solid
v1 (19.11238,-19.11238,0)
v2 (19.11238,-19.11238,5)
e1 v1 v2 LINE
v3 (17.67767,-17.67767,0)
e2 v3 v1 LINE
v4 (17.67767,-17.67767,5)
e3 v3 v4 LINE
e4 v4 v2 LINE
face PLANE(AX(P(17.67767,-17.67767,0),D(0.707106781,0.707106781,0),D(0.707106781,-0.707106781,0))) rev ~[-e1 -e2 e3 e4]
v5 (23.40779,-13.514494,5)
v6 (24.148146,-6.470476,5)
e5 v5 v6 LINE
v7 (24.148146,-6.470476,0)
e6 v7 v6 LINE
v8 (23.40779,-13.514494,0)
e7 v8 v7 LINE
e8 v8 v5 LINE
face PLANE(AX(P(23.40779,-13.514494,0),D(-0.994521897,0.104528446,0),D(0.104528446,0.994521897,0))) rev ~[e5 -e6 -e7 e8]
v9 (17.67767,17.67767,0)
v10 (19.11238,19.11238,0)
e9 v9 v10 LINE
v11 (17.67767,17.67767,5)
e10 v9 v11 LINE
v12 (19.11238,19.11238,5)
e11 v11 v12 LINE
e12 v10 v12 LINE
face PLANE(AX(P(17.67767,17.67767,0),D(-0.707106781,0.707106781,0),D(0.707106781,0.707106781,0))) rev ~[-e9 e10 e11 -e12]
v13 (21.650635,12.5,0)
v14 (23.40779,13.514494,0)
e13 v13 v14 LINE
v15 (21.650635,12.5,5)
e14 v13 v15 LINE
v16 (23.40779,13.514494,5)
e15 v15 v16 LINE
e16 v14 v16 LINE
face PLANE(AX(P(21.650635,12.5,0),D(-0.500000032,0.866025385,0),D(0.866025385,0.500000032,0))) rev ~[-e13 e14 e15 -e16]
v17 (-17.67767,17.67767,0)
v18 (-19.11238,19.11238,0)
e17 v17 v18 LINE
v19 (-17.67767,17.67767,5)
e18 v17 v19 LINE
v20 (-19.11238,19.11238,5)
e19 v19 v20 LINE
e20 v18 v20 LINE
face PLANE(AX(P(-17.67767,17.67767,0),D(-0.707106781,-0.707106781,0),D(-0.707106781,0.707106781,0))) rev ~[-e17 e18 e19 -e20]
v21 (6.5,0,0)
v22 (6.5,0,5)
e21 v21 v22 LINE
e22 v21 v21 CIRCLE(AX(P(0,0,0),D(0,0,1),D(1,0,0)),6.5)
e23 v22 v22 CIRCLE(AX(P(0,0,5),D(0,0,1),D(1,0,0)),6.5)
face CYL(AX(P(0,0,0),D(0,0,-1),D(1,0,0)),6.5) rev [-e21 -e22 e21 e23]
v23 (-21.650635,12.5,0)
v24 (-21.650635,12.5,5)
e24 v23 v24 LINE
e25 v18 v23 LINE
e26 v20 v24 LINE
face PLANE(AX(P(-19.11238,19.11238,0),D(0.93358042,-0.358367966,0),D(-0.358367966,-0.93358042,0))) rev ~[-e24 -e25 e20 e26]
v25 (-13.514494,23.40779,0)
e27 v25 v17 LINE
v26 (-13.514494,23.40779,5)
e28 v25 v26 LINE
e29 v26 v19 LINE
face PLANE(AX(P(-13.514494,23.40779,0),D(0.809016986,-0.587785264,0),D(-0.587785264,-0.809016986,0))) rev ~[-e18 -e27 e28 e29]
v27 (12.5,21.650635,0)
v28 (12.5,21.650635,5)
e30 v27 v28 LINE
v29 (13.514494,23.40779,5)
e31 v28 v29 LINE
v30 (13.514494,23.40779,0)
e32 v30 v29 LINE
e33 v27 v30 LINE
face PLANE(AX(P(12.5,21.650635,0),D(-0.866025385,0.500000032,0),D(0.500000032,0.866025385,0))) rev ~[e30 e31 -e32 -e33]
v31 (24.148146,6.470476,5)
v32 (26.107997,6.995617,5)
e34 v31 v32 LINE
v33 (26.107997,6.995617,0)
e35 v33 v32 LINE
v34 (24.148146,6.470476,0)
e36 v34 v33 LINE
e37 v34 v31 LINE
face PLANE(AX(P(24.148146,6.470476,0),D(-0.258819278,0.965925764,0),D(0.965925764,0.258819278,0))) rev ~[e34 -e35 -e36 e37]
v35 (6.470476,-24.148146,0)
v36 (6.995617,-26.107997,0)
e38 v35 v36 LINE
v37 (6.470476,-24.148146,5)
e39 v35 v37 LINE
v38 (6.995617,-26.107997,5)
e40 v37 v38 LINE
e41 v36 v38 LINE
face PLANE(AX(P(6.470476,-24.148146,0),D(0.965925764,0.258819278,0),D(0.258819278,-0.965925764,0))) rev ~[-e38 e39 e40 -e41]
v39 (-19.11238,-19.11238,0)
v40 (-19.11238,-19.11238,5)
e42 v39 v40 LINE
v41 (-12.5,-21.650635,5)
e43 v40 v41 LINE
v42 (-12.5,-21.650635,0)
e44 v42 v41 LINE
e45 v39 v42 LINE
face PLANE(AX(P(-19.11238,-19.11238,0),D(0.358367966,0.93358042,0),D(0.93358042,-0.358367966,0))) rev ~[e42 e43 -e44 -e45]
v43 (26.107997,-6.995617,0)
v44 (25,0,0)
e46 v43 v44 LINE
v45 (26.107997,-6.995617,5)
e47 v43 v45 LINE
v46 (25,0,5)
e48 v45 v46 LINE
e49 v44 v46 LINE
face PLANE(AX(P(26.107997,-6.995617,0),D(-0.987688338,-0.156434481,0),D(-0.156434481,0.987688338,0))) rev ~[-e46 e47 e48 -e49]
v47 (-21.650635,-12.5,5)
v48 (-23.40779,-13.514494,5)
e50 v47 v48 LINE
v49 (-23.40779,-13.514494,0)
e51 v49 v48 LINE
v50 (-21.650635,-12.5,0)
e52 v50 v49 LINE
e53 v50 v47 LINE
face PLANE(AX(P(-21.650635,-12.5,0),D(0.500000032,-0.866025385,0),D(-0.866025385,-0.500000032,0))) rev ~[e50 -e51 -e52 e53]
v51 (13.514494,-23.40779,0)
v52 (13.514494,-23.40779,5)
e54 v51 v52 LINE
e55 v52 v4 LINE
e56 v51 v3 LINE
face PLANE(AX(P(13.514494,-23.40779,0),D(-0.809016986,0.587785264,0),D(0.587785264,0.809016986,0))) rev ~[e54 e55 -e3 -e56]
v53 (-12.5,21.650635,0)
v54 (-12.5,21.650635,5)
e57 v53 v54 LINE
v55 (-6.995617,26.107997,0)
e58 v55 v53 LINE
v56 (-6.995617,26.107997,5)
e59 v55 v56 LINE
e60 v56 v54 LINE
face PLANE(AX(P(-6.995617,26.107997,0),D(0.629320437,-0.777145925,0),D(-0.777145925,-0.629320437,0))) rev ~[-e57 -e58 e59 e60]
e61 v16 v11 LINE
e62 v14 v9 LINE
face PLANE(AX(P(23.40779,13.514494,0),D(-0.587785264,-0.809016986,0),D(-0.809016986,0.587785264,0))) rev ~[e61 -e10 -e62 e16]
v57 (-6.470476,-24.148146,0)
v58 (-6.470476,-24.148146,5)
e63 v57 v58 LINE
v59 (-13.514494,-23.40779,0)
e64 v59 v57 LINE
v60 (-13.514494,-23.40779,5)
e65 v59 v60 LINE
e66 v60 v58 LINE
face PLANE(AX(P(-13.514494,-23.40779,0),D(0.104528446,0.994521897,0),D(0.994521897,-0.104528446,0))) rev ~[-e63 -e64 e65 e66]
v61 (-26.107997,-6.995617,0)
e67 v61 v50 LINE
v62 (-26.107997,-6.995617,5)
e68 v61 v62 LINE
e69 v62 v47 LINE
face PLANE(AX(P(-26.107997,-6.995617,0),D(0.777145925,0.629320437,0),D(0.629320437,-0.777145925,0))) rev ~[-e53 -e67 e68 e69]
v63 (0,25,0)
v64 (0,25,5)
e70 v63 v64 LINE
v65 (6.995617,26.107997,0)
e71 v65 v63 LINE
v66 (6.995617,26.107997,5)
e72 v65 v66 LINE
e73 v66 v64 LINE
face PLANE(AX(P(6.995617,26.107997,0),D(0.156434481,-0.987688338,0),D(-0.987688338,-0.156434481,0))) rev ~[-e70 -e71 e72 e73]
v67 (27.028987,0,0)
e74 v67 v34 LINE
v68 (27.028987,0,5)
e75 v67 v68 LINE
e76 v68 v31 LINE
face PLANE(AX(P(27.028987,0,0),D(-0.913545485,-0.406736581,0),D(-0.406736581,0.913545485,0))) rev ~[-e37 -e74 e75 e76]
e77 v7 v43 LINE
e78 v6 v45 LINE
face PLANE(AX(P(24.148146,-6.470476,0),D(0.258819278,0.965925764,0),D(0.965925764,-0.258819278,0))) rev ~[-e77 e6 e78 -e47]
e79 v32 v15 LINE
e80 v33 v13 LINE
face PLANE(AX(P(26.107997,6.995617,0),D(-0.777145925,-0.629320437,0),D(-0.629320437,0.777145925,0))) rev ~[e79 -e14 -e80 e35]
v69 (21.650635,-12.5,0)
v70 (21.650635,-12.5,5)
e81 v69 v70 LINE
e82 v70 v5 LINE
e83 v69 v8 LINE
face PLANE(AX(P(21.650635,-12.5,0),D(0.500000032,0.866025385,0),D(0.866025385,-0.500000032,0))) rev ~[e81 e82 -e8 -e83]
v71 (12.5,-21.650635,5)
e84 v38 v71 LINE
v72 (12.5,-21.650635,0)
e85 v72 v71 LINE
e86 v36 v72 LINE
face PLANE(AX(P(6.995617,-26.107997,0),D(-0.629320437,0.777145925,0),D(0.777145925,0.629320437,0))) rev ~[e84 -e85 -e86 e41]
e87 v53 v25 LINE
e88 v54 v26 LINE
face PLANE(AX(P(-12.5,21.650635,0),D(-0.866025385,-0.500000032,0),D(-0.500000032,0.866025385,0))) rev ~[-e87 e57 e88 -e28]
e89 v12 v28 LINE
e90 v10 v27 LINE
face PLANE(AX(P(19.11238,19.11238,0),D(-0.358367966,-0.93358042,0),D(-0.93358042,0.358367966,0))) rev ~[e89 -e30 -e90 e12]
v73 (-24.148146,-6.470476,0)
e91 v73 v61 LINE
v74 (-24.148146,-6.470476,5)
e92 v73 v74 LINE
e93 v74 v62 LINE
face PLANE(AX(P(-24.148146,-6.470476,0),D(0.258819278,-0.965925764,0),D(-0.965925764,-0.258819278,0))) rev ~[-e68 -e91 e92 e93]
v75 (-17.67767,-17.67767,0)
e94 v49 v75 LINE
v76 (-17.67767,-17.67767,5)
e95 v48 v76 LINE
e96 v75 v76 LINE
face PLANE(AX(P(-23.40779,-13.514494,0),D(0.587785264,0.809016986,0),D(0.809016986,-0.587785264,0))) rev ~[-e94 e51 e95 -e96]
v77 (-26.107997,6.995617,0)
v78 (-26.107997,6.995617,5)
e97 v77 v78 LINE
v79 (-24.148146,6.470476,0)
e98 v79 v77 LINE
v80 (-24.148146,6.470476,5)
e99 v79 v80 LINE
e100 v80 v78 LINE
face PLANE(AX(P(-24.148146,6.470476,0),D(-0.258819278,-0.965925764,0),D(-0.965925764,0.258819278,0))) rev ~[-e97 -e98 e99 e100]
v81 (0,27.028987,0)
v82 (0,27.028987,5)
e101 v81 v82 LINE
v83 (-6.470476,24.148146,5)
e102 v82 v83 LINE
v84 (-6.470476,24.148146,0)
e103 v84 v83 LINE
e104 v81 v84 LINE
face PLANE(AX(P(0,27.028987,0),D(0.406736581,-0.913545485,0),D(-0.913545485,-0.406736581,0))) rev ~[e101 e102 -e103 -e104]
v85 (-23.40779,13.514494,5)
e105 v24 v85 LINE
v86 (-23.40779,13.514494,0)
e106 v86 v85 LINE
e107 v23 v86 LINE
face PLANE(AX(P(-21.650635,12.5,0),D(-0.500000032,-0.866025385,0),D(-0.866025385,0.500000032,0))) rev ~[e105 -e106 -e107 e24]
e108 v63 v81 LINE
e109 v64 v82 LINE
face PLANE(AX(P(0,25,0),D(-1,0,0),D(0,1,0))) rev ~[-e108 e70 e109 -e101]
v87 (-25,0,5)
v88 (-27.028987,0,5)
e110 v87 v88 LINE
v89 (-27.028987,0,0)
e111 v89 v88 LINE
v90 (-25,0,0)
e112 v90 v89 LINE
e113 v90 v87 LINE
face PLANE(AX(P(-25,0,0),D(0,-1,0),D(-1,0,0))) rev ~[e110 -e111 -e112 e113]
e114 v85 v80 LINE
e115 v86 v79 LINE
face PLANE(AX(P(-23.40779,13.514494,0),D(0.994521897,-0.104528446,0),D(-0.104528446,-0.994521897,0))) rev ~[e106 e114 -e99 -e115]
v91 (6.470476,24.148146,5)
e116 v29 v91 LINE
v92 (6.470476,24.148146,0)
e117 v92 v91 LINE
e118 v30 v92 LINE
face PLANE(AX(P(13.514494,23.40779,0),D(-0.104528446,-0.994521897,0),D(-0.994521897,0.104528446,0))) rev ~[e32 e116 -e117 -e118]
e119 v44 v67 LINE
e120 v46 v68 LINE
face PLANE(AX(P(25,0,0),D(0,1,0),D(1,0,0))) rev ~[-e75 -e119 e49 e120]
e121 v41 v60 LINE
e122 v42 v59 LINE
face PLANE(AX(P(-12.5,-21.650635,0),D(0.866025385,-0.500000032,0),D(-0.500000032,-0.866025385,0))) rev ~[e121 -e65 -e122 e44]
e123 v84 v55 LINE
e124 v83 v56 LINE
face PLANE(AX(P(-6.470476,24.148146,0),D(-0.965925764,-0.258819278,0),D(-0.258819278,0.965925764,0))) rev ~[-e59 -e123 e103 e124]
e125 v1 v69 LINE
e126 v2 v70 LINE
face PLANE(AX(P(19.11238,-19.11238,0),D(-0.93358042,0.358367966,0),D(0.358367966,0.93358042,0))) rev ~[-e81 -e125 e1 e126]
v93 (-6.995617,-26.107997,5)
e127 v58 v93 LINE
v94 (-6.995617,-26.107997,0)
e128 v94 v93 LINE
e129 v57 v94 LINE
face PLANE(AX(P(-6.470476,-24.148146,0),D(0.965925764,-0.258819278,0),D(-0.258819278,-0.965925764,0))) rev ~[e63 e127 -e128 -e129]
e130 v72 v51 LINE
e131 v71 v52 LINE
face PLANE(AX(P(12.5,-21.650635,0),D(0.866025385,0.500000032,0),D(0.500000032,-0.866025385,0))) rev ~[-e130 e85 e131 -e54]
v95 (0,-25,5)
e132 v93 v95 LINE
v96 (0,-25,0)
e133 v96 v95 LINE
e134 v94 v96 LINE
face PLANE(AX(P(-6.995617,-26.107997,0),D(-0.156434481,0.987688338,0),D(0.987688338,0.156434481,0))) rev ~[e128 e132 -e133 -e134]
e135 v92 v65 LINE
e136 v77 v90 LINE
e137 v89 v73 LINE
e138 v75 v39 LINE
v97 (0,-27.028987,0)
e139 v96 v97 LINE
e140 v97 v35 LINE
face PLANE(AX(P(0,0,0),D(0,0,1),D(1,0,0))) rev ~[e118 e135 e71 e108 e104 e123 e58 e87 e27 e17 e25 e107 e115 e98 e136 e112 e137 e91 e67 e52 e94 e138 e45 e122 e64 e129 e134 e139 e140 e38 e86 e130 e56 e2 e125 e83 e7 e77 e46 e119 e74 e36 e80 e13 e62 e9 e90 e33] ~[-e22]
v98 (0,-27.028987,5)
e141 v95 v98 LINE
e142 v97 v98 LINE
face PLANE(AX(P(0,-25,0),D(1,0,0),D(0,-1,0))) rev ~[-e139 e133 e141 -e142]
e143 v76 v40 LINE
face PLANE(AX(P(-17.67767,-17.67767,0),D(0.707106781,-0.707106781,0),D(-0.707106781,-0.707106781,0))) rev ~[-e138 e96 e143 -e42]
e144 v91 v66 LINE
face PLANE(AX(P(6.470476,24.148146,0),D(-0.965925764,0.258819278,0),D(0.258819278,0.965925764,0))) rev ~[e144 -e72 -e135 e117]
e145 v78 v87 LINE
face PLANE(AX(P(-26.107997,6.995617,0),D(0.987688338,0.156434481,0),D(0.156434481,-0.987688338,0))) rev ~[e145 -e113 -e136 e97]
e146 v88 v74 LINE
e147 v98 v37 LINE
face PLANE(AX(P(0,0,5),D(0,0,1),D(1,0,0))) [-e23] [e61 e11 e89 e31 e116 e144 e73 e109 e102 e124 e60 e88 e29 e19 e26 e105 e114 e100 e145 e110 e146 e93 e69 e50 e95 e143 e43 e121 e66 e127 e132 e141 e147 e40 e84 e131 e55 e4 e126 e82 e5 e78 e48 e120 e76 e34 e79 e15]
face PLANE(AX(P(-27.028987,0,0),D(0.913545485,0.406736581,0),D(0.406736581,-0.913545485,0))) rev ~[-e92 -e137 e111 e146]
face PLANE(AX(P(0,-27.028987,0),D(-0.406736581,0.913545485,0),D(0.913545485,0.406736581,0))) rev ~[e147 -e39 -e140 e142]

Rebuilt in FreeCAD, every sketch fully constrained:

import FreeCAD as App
import Part
import Sketcher

V = App.Vector
Q = App.Units.Quantity


def add_polygon(sketch, points):
    """Adds a closed chain of lines whose ends are joined by coincident constraints."""
    first, n = sketch.GeometryCount, len(points)
    for a, b in zip(points, points[1:] + points[:1]):
        sketch.addGeometry(Part.LineSegment(App.Vector(*a, 0), App.Vector(*b, 0)), False)
    for i in range(n):
        sketch.addConstraint(Sketcher.Constraint("Coincident", first + i, 2, first + (i + 1) % n, 1))

doc = App.newDocument("Part")
params = doc.addObject("Spreadsheet::Sheet", "Params")
for row, (alias, value) in enumerate([
    ("sketch1_diameter", "13 mm"),
    ("pad1_length", "5 mm"),
], start=1):
    params.set(f"A{row}", alias)
    params.set(f"B{row}", "=" + value)
    params.setAlias(f"B{row}", alias)

body = doc.addObject("PartDesign::Body", "Body")

sketch1 = body.newObject("Sketcher::SketchObject", "Sketch")
sketch1.AttachmentSupport = (doc.getObject("XY_Plane"), [""])
sketch1.MapMode = "FlatFace"
add_polygon(sketch1, [(7, 26.1), (0, 25), (0, 27), (-6.5, 24.1), (-7, 26.1), (-12.5, 21.7), (-13.5, 23.4), (-17.7, 17.7), (-19.1, 19.1), (-21.7, 12.5), (-23.4, 13.5), (-24.1, 6.5), (-26.1, 7), (-25, 0), (-27, 0), (-24.1, -6.5), (-26.1, -7), (-21.7, -12.5), (-23.4, -13.5), (-17.7, -17.7), (-19.1, -19.1), (-12.5, -21.7), (-13.5, -23.4), (-6.5, -24.1), (-7, -26.1), (0, -25), (0, -27), (6.5, -24.1), (7, -26.1), (12.5, -21.7), (13.5, -23.4), (17.7, -17.7), (19.1, -19.1), (21.7, -12.5), (23.4, -13.5), (24.1, -6.5), (26.1, -7), (25, 0), (27, 0), (24.1, 6.5), (26.1, 7), (21.7, 12.5), (23.4, 13.5), (17.7, 17.7), (19.1, 19.1), (12.5, 21.7), (13.5, 23.4), (6.5, 24.1)])
sketch1.addGeometry(Part.Circle(V(0, 0, 0), V(0, 0, 1), 6.5), False)
sketch1.addConstraint([
    Sketcher.Constraint("Vertical", 1),
    Sketcher.Constraint("Horizontal", 13),
    Sketcher.Constraint("Vertical", 25),
    Sketcher.Constraint("Horizontal", 37),
    Sketcher.Constraint("Coincident", 48, 3, -1, 1),
    Sketcher.Constraint("Symmetric", 0, 2, 24, 2, -1, 1),
    Sketcher.Constraint("Symmetric", 2, 2, 26, 2, -1, 1),
    Sketcher.Constraint("Symmetric", 3, 2, 27, 2, -1, 1),
    Sketcher.Constraint("Symmetric", 4, 2, 28, 2, -1, 1),
    Sketcher.Constraint("Symmetric", 5, 2, 29, 2, -1, 1),
    Sketcher.Constraint("Symmetric", 6, 2, 30, 2, -1, 1),
    Sketcher.Constraint("Symmetric", 7, 2, 31, 2, -1, 1),
    Sketcher.Constraint("Symmetric", 8, 2, 32, 2, -1, 1),
    Sketcher.Constraint("Symmetric", 9, 2, 33, 2, -1, 1),
    Sketcher.Constraint("Symmetric", 10, 2, 34, 2, -1, 1),
    Sketcher.Constraint("Symmetric", 11, 2, 35, 2, -1, 1),
    Sketcher.Constraint("Symmetric", 12, 2, 36, 2, -1, 1),
    Sketcher.Constraint("Symmetric", 14, 2, 38, 2, -1, 1),
    Sketcher.Constraint("Symmetric", 15, 2, 39, 2, -1, 1),
    Sketcher.Constraint("Symmetric", 16, 2, 40, 2, -1, 1),
    Sketcher.Constraint("Symmetric", 17, 2, 41, 2, -1, 1),
    Sketcher.Constraint("Symmetric", 18, 2, 42, 2, -1, 1),
    Sketcher.Constraint("Symmetric", 19, 2, 43, 2, -1, 1),
    Sketcher.Constraint("Symmetric", 20, 2, 44, 2, -1, 1),
    Sketcher.Constraint("Symmetric", 21, 2, 45, 2, -1, 1),
    Sketcher.Constraint("Symmetric", 22, 2, 46, 2, -1, 1),
    Sketcher.Constraint("Symmetric", 23, 2, 47, 2, -1, 1),
    Sketcher.Constraint("Symmetric", 22, 2, 26, 2, -2),
    Sketcher.Constraint("Symmetric", 23, 2, 27, 2, -2),
    Sketcher.Constraint("Symmetric", 20, 2, 28, 2, -2),
    Sketcher.Constraint("Symmetric", 21, 2, 29, 2, -2),
    Sketcher.Constraint("Symmetric", 18, 2, 30, 2, -2),
    Sketcher.Constraint("Symmetric", 19, 2, 31, 2, -2),
    Sketcher.Constraint("Symmetric", 16, 2, 32, 2, -2),
    Sketcher.Constraint("Symmetric", 17, 2, 33, 2, -2),
    Sketcher.Constraint("Symmetric", 14, 2, 34, 2, -2),
    Sketcher.Constraint("Symmetric", 15, 2, 35, 2, -2),
    Sketcher.Constraint("Symmetric", 13, 2, 37, 2, -2),
    Sketcher.Constraint("Symmetric", 1, 2, 25, 2, -1),
    Sketcher.Constraint("Perpendicular", 0, 12),
    Sketcher.Constraint("Perpendicular", 2, 14),
    Sketcher.Constraint("Perpendicular", 3, 15),
    Sketcher.Constraint("Perpendicular", 4, 16),
    Sketcher.Constraint("Perpendicular", 5, 17),
    Sketcher.Constraint("Perpendicular", 6, 18),
    Sketcher.Constraint("Perpendicular", 7, 19),
    Sketcher.Constraint("Perpendicular", 8, 20),
    Sketcher.Constraint("Perpendicular", 10, 22),
    Sketcher.Constraint("Equal", 37, 1),
    Sketcher.Constraint("Equal", 0, 2),
    Sketcher.Constraint("Equal", 2, 4),
    Sketcher.Constraint("Equal", 3, 5),
    Sketcher.Constraint("Equal", 4, 6),
    Sketcher.Constraint("Equal", 5, 7),
    Sketcher.Constraint("Equal", 6, 8),
    Sketcher.Constraint("Equal", 7, 9),
    Sketcher.Constraint("Equal", 8, 10),
    Sketcher.Constraint("Equal", 9, 11),
    Sketcher.Constraint("Diameter", 48, 13.0),
    Sketcher.Constraint("Angle", 0, Q("-170.999999 deg")),
    Sketcher.Constraint("Angle", 2, Q("-156.000004 deg")),
    Sketcher.Constraint("Angle", 3, Q("105.000014 deg")),
    Sketcher.Constraint("Angle", 4, Q("-140.999997 deg")),
    Sketcher.Constraint("DistanceY", -1, 1, 0, 2, 25.0),
])
sketch1.setExpression("Constraints[106]", "Params.sketch1_diameter")
pad1 = body.newObject("PartDesign::Pad", "Pad")
pad1.Profile = sketch1
pad1.setExpression("Length", "Params.pad1_length")

doc.recompute()
